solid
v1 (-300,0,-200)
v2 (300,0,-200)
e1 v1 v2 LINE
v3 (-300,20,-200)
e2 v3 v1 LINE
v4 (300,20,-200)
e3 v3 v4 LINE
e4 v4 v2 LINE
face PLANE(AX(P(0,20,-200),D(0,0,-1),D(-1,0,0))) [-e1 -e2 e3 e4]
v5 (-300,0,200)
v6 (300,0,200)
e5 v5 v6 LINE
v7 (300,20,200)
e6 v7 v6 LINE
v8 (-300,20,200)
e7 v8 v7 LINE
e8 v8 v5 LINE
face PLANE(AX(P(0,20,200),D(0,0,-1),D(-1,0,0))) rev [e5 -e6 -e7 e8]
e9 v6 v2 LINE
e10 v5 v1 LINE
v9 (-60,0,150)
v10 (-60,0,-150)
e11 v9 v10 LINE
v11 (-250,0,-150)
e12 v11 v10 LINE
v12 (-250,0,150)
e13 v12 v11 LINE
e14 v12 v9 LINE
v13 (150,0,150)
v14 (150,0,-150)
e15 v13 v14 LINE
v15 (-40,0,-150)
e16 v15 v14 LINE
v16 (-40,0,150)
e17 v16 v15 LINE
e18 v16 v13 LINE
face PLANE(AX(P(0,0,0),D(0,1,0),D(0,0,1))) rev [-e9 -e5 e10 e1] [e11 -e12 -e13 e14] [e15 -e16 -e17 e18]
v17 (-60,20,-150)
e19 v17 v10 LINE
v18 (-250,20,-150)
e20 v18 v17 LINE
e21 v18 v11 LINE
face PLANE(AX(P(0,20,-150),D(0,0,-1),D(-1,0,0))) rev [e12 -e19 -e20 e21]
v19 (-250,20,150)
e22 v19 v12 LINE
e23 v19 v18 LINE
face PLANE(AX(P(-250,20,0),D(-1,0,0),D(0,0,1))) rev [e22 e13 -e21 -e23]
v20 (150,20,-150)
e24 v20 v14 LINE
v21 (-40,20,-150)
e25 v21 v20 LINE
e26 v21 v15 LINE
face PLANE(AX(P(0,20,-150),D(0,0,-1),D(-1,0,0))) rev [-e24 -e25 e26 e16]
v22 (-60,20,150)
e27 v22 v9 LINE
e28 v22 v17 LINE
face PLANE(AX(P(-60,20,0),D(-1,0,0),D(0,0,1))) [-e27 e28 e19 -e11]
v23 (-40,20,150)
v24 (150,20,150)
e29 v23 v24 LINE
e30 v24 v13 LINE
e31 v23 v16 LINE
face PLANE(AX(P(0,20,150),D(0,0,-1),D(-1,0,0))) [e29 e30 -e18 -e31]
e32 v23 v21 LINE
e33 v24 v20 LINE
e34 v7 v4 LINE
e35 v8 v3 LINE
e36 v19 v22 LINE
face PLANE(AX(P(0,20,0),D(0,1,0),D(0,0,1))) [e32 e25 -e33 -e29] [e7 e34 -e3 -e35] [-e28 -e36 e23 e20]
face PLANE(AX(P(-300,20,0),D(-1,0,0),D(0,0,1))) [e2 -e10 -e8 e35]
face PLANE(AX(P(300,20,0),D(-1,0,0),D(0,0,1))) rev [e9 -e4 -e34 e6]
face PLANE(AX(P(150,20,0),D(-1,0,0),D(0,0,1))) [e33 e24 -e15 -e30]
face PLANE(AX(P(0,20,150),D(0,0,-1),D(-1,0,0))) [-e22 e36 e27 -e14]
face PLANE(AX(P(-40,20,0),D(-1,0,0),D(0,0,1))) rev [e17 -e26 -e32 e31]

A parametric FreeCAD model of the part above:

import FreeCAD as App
import Part
import Sketcher
Q = App.Units.Quantity

doc = App.newDocument("Part")
body = doc.addObject("PartDesign::Body", "Body")

# Sketch on XZ plane
sketch1 = body.newObject("Sketcher::SketchObject", "Sketch")
sketch1.AttachmentSupport = (doc.getObject("XZ_Plane"), [""])
sketch1.MapMode = "FlatFace"
sketch1.addGeometry([
    Part.LineSegment(App.Vector(-300, -200, 0), App.Vector(-300, 200, 0)),  # 0
    Part.LineSegment(App.Vector(-300, 200, 0), App.Vector(300, 200, 0)),  # 1
    Part.LineSegment(App.Vector(300, 200, 0), App.Vector(300, -200, 0)),  # 2
    Part.LineSegment(App.Vector(300, -200, 0), App.Vector(-300, -200, 0)),  # 3
    Part.LineSegment(App.Vector(170, -170, 0), App.Vector(170, 170, 0)),  # 4
    Part.LineSegment(App.Vector(170, 170, 0), App.Vector(-270, 170, 0)),  # 5
    Part.LineSegment(App.Vector(-270, 170, 0), App.Vector(-270, -170, 0)),  # 6
    Part.LineSegment(App.Vector(-270, -170, 0), App.Vector(170, -170, 0)),  # 7
], False)
sketch1.addConstraint([
    Sketcher.Constraint("Coincident", 0, 2, 1, 1),
    Sketcher.Constraint("Coincident", 1, 2, 2, 1),
    Sketcher.Constraint("Coincident", 2, 2, 3, 1),
    Sketcher.Constraint("Coincident", 3, 2, 0, 1),
    Sketcher.Constraint("Coincident", 4, 2, 5, 1),
    Sketcher.Constraint("Coincident", 5, 2, 6, 1),
    Sketcher.Constraint("Coincident", 6, 2, 7, 1),
    Sketcher.Constraint("Coincident", 7, 2, 4, 1),
    Sketcher.Constraint("Vertical", 0),
    Sketcher.Constraint("Horizontal", 1),
    Sketcher.Constraint("Vertical", 2),
    Sketcher.Constraint("Horizontal", 3),
    Sketcher.Constraint("Vertical", 4),
    Sketcher.Constraint("Horizontal", 5),
    Sketcher.Constraint("Vertical", 6),
    Sketcher.Constraint("Horizontal", 7),
    Sketcher.Constraint("Symmetric", 0, 2, 2, 2, -1, 1),
    Sketcher.Constraint("DistanceX", 1, 1, 1, 2, Q("600 mm")),
    Sketcher.Constraint("DistanceX", 5, 2, 5, 1, Q("440 mm")),
    Sketcher.Constraint("DistanceY", 0, 1, 0, 2, Q("400 mm")),
    Sketcher.Constraint("DistanceY", 4, 1, 4, 2, Q("340 mm")),
    Sketcher.Constraint("DistanceX", -1, 1, 4, 2, Q("170 mm")),
    Sketcher.Constraint("DistanceY", -1, 1, 4, 2, Q("170 mm")),
])
pad1 = body.newObject("PartDesign::Pad", "Pad")
pad1.Profile = sketch1
pad1.Length = 20
pad1.Reversed = True

# Sketch on XZ plane
sketch2 = body.newObject("Sketcher::SketchObject", "Sketch001")
sketch2.AttachmentSupport = (doc.getObject("XZ_Plane"), [""])
sketch2.MapMode = "FlatFace"
sketch2.addGeometry([
    Part.LineSegment(App.Vector(170, 170, 0), App.Vector(170, -170, 0)),  # 0
    Part.LineSegment(App.Vector(170, -170, 0), App.Vector(-270, -170, 0)),  # 1
    Part.LineSegment(App.Vector(-270, -170, 0), App.Vector(-270, 170, 0)),  # 2
    Part.LineSegment(App.Vector(-270, 170, 0), App.Vector(170, 170, 0)),  # 3
    Part.LineSegment(App.Vector(-40, 150, 0), App.Vector(-40, -150, 0)),  # 4
    Part.LineSegment(App.Vector(-40, -150, 0), App.Vector(150, -150, 0)),  # 5
    Part.LineSegment(App.Vector(150, -150, 0), App.Vector(150, 150, 0)),  # 6
    Part.LineSegment(App.Vector(150, 150, 0), App.Vector(-40, 150, 0)),  # 7
    Part.LineSegment(App.Vector(-250, 150, 0), App.Vector(-250, -150, 0)),  # 8
    Part.LineSegment(App.Vector(-250, -150, 0), App.Vector(-60, -150, 0)),  # 9
    Part.LineSegment(App.Vector(-60, -150, 0), App.Vector(-60, 150, 0)),  # 10
    Part.LineSegment(App.Vector(-60, 150, 0), App.Vector(-250, 150, 0)),  # 11
], False)
sketch2.addConstraint([
    Sketcher.Constraint("Coincident", 0, 2, 1, 1),
    Sketcher.Constraint("Coincident", 1, 2, 2, 1),
    Sketcher.Constraint("Coincident", 2, 2, 3, 1),
    Sketcher.Constraint("Coincident", 3, 2, 0, 1),
    Sketcher.Constraint("Coincident", 4, 2, 5, 1),
    Sketcher.Constraint("Coincident", 5, 2, 6, 1),
    Sketcher.Constraint("Coincident", 6, 2, 7, 1),
    Sketcher.Constraint("Coincident", 7, 2, 4, 1),
    Sketcher.Constraint("Coincident", 8, 2, 9, 1),
    Sketcher.Constraint("Coincident", 9, 2, 10, 1),
    Sketcher.Constraint("Coincident", 10, 2, 11, 1),
    Sketcher.Constraint("Coincident", 11, 2, 8, 1),
    Sketcher.Constraint("Vertical", 0),
    Sketcher.Constraint("Horizontal", 1),
    Sketcher.Constraint("Vertical", 2),
    Sketcher.Constraint("Horizontal", 3),
    Sketcher.Constraint("Vertical", 4),
    Sketcher.Constraint("Horizontal", 5),
    Sketcher.Constraint("Vertical", 6),
    Sketcher.Constraint("Horizontal", 7),
    Sketcher.Constraint("Vertical", 8),
    Sketcher.Constraint("Horizontal", 9),
    Sketcher.Constraint("Vertical", 10),
    Sketcher.Constraint("Horizontal", 11),
    Sketcher.Constraint("Horizontal", 5, 2, 8, 2),
    Sketcher.Constraint("Horizontal", 7, 2, 10, 2),
    Sketcher.Constraint("Equal", 7, 9),
    Sketcher.Constraint("DistanceX", 1, 2, 1, 1, Q("440 mm")),
    Sketcher.Constraint("DistanceX", 5, 1, 5, 2, Q("190 mm")),
    Sketcher.Constraint("DistanceY", 0, 2, 0, 1, Q("340 mm")),
    Sketcher.Constraint("DistanceY", 4, 2, 4, 1, Q("300 mm")),
    Sketcher.Constraint("DistanceX", -1, 1, 0, 2, Q("170 mm")),
    Sketcher.Constraint("DistanceY", 0, 2, -1, 1, Q("170 mm")),
    Sketcher.Constraint("DistanceX", 4, 2, -1, 1, Q("40 mm")),
    Sketcher.Constraint("DistanceY", 4, 2, -1, 1, Q("150 mm")),
    Sketcher.Constraint("DistanceX", 8, 2, -1, 1, Q("250 mm")),
])
pad2 = body.newObject("PartDesign::Pad", "Pad001")
pad2.Profile = sketch2
pad2.Length = 20
pad2.Reversed = True

doc.recompute()
